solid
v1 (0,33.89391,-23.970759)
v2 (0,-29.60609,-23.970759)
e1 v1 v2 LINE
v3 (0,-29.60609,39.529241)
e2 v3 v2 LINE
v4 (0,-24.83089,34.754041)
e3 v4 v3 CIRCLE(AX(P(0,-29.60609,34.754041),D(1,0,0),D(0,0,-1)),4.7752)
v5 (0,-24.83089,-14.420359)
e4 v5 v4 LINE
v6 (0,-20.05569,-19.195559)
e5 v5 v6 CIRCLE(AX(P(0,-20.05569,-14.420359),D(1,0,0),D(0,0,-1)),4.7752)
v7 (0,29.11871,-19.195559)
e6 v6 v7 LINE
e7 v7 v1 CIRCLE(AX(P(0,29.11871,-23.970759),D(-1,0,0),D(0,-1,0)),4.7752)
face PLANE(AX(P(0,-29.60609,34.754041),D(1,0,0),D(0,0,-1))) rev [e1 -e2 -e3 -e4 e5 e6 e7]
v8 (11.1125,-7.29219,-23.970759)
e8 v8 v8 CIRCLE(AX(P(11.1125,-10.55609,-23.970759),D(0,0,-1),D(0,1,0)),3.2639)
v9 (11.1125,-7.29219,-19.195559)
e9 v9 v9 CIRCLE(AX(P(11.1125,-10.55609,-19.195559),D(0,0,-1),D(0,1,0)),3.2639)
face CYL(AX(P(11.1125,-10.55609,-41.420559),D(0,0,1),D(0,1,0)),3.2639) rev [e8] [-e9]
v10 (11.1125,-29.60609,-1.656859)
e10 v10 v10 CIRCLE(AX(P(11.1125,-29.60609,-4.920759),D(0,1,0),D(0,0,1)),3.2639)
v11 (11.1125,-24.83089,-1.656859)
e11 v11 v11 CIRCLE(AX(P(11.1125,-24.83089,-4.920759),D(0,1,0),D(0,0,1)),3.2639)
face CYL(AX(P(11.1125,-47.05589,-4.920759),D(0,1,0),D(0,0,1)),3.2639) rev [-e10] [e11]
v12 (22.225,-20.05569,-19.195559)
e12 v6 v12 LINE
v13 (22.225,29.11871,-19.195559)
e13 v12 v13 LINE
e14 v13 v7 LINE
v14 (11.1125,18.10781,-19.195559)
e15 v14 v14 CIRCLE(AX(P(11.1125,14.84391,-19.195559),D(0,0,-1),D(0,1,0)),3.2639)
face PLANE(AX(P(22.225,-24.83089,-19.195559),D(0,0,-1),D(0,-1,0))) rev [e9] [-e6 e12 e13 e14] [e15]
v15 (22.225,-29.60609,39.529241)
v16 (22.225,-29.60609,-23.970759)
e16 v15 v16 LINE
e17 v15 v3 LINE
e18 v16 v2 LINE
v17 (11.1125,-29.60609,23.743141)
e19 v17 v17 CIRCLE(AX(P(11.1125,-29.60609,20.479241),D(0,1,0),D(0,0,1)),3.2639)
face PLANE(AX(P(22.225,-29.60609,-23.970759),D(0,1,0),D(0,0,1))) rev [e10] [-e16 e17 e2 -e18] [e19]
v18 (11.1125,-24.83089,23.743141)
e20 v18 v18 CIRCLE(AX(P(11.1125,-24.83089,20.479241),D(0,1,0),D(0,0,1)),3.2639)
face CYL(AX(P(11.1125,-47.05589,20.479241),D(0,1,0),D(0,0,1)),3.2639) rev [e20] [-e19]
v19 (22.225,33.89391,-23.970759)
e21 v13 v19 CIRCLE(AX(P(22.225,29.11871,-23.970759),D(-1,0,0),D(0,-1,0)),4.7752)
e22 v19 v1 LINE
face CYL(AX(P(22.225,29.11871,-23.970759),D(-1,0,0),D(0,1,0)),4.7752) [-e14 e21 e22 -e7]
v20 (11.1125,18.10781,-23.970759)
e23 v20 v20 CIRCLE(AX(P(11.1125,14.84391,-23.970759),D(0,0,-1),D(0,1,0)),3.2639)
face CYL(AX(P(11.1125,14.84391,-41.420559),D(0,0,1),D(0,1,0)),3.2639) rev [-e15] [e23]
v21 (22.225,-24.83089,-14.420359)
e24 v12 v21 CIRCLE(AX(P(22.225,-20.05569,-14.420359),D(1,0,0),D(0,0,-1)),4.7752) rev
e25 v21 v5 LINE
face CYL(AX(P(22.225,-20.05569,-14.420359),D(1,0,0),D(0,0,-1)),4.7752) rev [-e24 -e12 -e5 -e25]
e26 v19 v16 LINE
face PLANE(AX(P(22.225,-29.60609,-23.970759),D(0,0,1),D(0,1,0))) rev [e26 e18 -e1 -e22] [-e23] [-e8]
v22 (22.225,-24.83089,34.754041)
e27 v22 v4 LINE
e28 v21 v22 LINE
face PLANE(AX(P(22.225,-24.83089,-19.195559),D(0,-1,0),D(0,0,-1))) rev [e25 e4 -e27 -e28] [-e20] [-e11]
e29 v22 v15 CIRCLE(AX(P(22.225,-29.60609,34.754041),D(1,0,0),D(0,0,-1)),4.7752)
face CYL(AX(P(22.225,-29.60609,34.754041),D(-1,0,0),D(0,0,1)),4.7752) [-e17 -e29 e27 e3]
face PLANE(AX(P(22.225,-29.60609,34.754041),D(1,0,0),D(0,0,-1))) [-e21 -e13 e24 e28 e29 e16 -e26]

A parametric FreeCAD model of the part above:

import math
import FreeCAD as App
import Part
import Sketcher

V = App.Vector
Q = App.Units.Quantity


def edges_at(feature, points):
    """Names of the edges that pass closest to the given points."""
    edges = feature.Shape.Edges
    near = lambda p: min(range(len(edges)), key=lambda i: edges[i].distToShape(Part.Vertex(*p))[0])
    return sorted({f"Edge{near(p) + 1}" for p in points})

doc = App.newDocument("Part")
params = doc.addObject("Spreadsheet::Sheet", "Params")
for row, (alias, value) in enumerate([
    ("sketch1_height", "2.5 in"),
    ("sketch1_radius", "0.188 in"),
    ("sketch1_height2", "2.124 in"),
    ("pad1_length", "0.875 in"),
    ("sketch2_diameter", "0.257 in"),
    ("pocket1_length", "0.875 in"),
    ("fillet_radius", "0.188 in"),
], start=1):
    params.set(f"A{row}", alias)
    params.set(f"B{row}", "=" + value)
    params.setAlias(f"B{row}", alias)

body = doc.addObject("PartDesign::Body", "Body")

sketch1 = body.newObject("Sketcher::SketchObject", "Sketch")
sketch1.AttachmentSupport = (doc.getObject("YZ_Plane"), [""])
sketch1.MapMode = "FlatFace"
sketch1.addGeometry(Part.LineSegment(V(-29.60609, -23.970759, 0), V(-24.83089, -19.195559, 0)), False)
sketch1.addGeometry(Part.LineSegment(V(-24.83089, -19.195559, 0), V(-24.83089, 34.754041, 0)), False)
sketch1.addGeometry(Part.ArcOfCircle(Part.Circle(V(-29.60609, 34.754041, 0), V(0, 0, 1), 4.7752), math.radians(0), math.radians(90)), False)
sketch1.addGeometry(Part.LineSegment(V(-29.60609, 39.529241, 0), V(-29.60609, -23.970759, 0)), False)
sketch1.addConstraint(Sketcher.Constraint("Coincident", 0, 2, 1, 1))
sketch1.addConstraint(Sketcher.Constraint("Tangent", 1, 2, 2, 1))
sketch1.addConstraint(Sketcher.Constraint("Coincident", 2, 2, 3, 1))
sketch1.addConstraint(Sketcher.Constraint("Coincident", 3, 2, 0, 1))
sketch1.addConstraint(Sketcher.Constraint("Vertical", 1))
sketch1.addConstraint(Sketcher.Constraint("Vertical", 3))
sketch1.addConstraint(Sketcher.Constraint("DistanceY", 3, 2, 3, 1, Q("2.5 in")))
sketch1.addConstraint(Sketcher.Constraint("Angle", 0, Q("45 deg")))
sketch1.addConstraint(Sketcher.Constraint("Radius", 2, Q("0.188 in")))
sketch1.addConstraint(Sketcher.Constraint("DistanceY", 1, 1, 1, 2, Q("2.124 in")))
sketch1.addConstraint(Sketcher.Constraint("DistanceX", 2, 3, -1, 1, Q("29.60609 mm")))
sketch1.addConstraint(Sketcher.Constraint("DistanceY", -1, 1, 2, 3, Q("34.754041 mm")))
sketch1.setExpression("Constraints[6]", "Params.sketch1_height")
sketch1.setExpression("Constraints[8]", "Params.sketch1_radius")
sketch1.setExpression("Constraints[9]", "Params.sketch1_height2")
pad1 = body.newObject("PartDesign::Pad", "Pad")
pad1.Profile = sketch1
pad1.setExpression("Length", "Params.pad1_length")

sketch2 = body.newObject("Sketcher::SketchObject", "Sketch001")
sketch2.AttachmentSupport = (doc.getObject("XZ_Plane"), [""])
sketch2.MapMode = "FlatFace"
sketch2.AttachmentOffset = App.Placement(V(0, 0, 24.83089), App.Rotation())
sketch2.addGeometry(Part.Circle(V(11.1125, 20.479241, 0), V(0, 0, 1), 3.2639), False)
sketch2.addGeometry(Part.Circle(V(11.1125, -4.920759, 0), V(0, 0, 1), 3.2639), False)
sketch2.addConstraint(Sketcher.Constraint("Equal", 0, 1))
sketch2.addConstraint(Sketcher.Constraint("Vertical", 0, 3, 1, 3))
sketch2.addConstraint(Sketcher.Constraint("Diameter", 0, Q("0.257 in")))
sketch2.addConstraint(Sketcher.Constraint("DistanceY", 1, 3, 0, 3, Q("1 in")))
sketch2.addConstraint(Sketcher.Constraint("DistanceX", -1, 1, 0, 3, Q("0.4375 in")))
sketch2.addConstraint(Sketcher.Constraint("DistanceY", -1, 1, 0, 3, Q("20.479241 mm")))
sketch2.setExpression("Constraints[2]", "Params.sketch2_diameter")
pocket1 = body.newObject("PartDesign::Pocket", "Pocket")
pocket1.Profile = sketch2
pocket1.setExpression("Length", "Params.pocket1_length")
pocket1.Reversed = True
body2 = doc.addObject("PartDesign::Body", "Body001")
doc.recompute()

body2.BaseFeature = body
doc.recompute()

mirroring = doc.addObject("Part::Mirroring", "Mirroring")
mirroring.Source = body
mirroring.Base = V(22.225, -29.60609, -23.970759)
mirroring.Normal = V(0, -0.707106781, 0.707106781)
body3 = doc.addObject("PartDesign::Body", "Body002")
body3.BaseFeature = mirroring
boolean = body2.newObject("PartDesign::Boolean", "Boolean")
boolean.Type = "Fuse"
boolean.addObjects([body3])
doc.recompute()

fillet = body2.newObject("PartDesign::Fillet", "Fillet")
fillet.Base = (boolean, edges_at(boolean, [(11.113, -24.831, -19.196)]))
fillet.setExpression("Radius", "Params.fillet_radius")
mirroring.Visibility = False

doc.recompute()
